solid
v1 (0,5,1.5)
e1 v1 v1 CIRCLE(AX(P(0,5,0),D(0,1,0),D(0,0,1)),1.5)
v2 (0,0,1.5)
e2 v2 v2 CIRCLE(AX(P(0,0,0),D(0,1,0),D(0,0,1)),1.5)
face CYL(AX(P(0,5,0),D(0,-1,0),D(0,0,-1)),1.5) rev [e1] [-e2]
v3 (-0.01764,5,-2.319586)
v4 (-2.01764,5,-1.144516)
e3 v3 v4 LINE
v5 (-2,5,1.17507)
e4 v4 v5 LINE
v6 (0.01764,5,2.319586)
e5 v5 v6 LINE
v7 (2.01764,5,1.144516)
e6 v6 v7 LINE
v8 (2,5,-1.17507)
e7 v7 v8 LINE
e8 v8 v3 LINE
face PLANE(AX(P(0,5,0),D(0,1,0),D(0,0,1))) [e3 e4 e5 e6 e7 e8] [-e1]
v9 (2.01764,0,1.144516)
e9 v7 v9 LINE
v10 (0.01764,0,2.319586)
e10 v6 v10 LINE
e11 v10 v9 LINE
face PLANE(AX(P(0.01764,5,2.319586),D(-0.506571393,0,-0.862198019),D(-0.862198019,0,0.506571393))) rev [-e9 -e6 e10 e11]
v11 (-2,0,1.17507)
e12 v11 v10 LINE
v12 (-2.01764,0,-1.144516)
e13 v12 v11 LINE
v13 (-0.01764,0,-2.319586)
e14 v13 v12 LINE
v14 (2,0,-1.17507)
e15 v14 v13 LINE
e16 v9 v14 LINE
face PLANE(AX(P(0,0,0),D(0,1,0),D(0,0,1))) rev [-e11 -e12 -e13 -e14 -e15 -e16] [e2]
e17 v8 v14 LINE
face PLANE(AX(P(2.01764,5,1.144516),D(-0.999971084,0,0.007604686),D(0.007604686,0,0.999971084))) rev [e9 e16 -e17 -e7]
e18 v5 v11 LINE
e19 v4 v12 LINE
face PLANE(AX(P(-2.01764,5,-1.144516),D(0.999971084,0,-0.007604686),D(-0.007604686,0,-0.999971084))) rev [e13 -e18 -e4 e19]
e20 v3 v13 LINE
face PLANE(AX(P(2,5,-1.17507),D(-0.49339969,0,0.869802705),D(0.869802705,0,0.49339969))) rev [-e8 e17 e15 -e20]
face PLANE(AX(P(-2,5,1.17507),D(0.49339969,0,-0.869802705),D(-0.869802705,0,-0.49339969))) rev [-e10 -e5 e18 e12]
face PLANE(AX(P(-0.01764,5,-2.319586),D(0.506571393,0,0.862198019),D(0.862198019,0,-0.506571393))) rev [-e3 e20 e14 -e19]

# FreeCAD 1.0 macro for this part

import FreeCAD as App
import Part
import Sketcher
from FreeCAD import Vector

doc = App.newDocument("Part")
body = doc.addObject("PartDesign::Body", "Body")

# Sketch on XZ plane
sketch1 = body.newObject("Sketcher::SketchObject", "Sketch")
sketch1.AttachmentSupport = (doc.getObject("XZ_Plane"), [""])
sketch1.MapMode = "FlatFace"
sketch1.addGeometry(Part.LineSegment(Vector(2, -1.2, 0), Vector(0, -2.3, 0)), False)
sketch1.addGeometry(Part.LineSegment(Vector(0, -2.3, 0), Vector(-2, -1.1, 0)), False)
sketch1.addGeometry(Part.LineSegment(Vector(-2, -1.1, 0), Vector(-2, 1.2, 0)), False)
sketch1.addGeometry(Part.LineSegment(Vector(-2, 1.2, 0), Vector(0, 2.3, 0)), False)
sketch1.addGeometry(Part.LineSegment(Vector(0, 2.3, 0), Vector(2, 1.1, 0)), False)
sketch1.addGeometry(Part.LineSegment(Vector(2, 1.1, 0), Vector(2, -1.2, 0)), False)
sketch1.addGeometry(Part.Circle(Vector(0, 0, 0), Vector(0, 0, 1), 1.5), False)
sketch1.addConstraint(Sketcher.Constraint("Coincident", 0, 2, 1, 1))
sketch1.addConstraint(Sketcher.Constraint("Coincident", 1, 2, 2, 1))
sketch1.addConstraint(Sketcher.Constraint("Coincident", 2, 2, 3, 1))
sketch1.addConstraint(Sketcher.Constraint("Coincident", 3, 2, 4, 1))
sketch1.addConstraint(Sketcher.Constraint("Coincident", 4, 2, 5, 1))
sketch1.addConstraint(Sketcher.Constraint("Coincident", 5, 2, 0, 1))
sketch1.addConstraint(Sketcher.Constraint("Coincident", 6, 3, -1, 1))
sketch1.addConstraint(Sketcher.Constraint("Symmetric", 0, 2, 3, 2, -1, 1))
sketch1.addConstraint(Sketcher.Constraint("Symmetric", 1, 2, 4, 2, -1, 1))
sketch1.addConstraint(Sketcher.Constraint("Symmetric", 2, 2, 5, 2, -1, 1))
sketch1.addConstraint(Sketcher.Constraint("Equal", 0, 1))
sketch1.addConstraint(Sketcher.Constraint("Equal", 1, 2))
sketch1.addConstraint(Sketcher.Constraint("Diameter", 6, 3.0))
sketch1.addConstraint(Sketcher.Constraint("DistanceX", 2, 2, -1, 1, 2.0))
sketch1.addConstraint(Sketcher.Constraint("DistanceX", 1, 2, 0, 2, 2.0))
sketch1.addConstraint(Sketcher.Constraint("DistanceY", 1, 2, 3, 2, 3.464102))
sketch1.addConstraint(Sketcher.Constraint("DistanceX", 0, 2, -1, 1, 0.01764))
pad1 = body.newObject("PartDesign::Pad", "Pad")
pad1.Profile = sketch1
pad1.Length = 5
pad1.Reversed = True

doc.recompute()
